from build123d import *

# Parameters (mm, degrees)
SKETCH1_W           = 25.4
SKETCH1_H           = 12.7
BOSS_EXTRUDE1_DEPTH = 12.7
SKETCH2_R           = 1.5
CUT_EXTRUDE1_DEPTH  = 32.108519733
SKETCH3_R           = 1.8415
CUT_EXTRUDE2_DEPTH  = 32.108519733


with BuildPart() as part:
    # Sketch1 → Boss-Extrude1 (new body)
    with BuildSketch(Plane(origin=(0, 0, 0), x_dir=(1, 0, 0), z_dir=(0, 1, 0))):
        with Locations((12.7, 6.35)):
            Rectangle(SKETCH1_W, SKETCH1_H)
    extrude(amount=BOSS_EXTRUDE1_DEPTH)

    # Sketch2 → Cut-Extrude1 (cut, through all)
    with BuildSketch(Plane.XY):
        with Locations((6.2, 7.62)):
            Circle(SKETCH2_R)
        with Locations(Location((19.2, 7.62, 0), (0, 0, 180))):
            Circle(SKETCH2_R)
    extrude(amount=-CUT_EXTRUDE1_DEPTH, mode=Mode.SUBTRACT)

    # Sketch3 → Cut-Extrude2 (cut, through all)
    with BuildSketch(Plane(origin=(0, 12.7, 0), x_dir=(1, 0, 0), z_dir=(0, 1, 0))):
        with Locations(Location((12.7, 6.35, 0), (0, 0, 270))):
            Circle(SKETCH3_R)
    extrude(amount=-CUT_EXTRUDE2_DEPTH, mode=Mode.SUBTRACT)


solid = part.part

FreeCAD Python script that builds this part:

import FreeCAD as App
import Part
import Sketcher

V = App.Vector
Q = App.Units.Quantity


def add_polygon(sketch, points):
    """Adds a closed chain of lines whose ends are joined by coincident constraints."""
    first, n = sketch.GeometryCount, len(points)
    for a, b in zip(points, points[1:] + points[:1]):
        sketch.addGeometry(Part.LineSegment(App.Vector(*a, 0), App.Vector(*b, 0)), False)
    for i in range(n):
        sketch.addConstraint(Sketcher.Constraint("Coincident", first + i, 2, first + (i + 1) % n, 1))

doc = App.newDocument("Part")
body = doc.addObject("PartDesign::Body", "Body")

sketch1 = doc.addObject("Sketcher::SketchObject", "Sketch")
body.addObject(sketch1)
sketch1.AttachmentSupport = (doc.XZ_Plane, [""])
sketch1.MapMode = "FlatFace"
add_polygon(sketch1, [(0, -13), (0, 0), (25, 0), (25, -13)])
sketch1.addConstraint([
    Sketcher.Constraint("Vertical", 0),
    Sketcher.Constraint("Horizontal", 1),
    Sketcher.Constraint("Vertical", 2),
    Sketcher.Constraint("Horizontal", 3),
    Sketcher.Constraint("Coincident", 0, 2, -1, 1),
    Sketcher.Constraint("DistanceX", 1, 1, 1, 2, Q("1 in")),
    Sketcher.Constraint("DistanceY", 0, 1, 0, 2, Q("0.5 in")),
])
pad1 = doc.addObject("PartDesign::Pad", "Pad")
body.addObject(pad1)
pad1.Profile = sketch1
pad1.Length = Q("0.5 in")
pad1.Reversed = True

sketch2 = doc.addObject("Sketcher::SketchObject", "Sketch001")
body.addObject(sketch2)
sketch2.AttachmentSupport = (doc.XY_Plane, [""])
sketch2.MapMode = "FlatFace"
sketch2.addGeometry([
    Part.Circle(V(6.2, 7.6, 0), V(0, 0, 1), 1.5),
    Part.Circle(V(19.2, 7.6, 0), V(0, 0, 1), 1.5),
], False)
sketch2.addConstraint([
    Sketcher.Constraint("Equal", 0, 1),
    Sketcher.Constraint("Horizontal", 0, 3, 1, 3),
    Sketcher.Constraint("DistanceY", -1, 1, 0, 3, Q("0.3 in")),
    Sketcher.Constraint("Diameter", 0, Q("3 mm")),
    Sketcher.Constraint("DistanceX", -1, 1, 0, 3, Q("6.2 mm")),
    Sketcher.Constraint("DistanceX", -1, 1, 1, 3, Q("19.2 mm")),
])
pocket1 = doc.addObject("PartDesign::Pocket", "Pocket")
body.addObject(pocket1)
pocket1.Profile = sketch2
pocket1.Type = "ThroughAll"

sketch3 = doc.addObject("Sketcher::SketchObject", "Sketch002")
body.addObject(sketch3)
sketch3.AttachmentSupport = (doc.XZ_Plane, [""])
sketch3.MapMode = "FlatFace"
sketch3.AttachmentOffset = App.Placement(V(0, 0, -0.5 * 25.4), App.Rotation())
sketch3.addGeometry(Part.Circle(V(12.7, -6.3, 0), V(0, 0, 1), 1.8), False)
sketch3.addConstraint([
    Sketcher.Constraint("Diameter", 0, Q("0.145 in")),
    Sketcher.Constraint("DistanceX", -1, 1, 0, 3, Q("0.5 in")),
    Sketcher.Constraint("DistanceY", 0, 3, -1, 1, Q("0.25 in")),
])
pocket2 = doc.addObject("PartDesign::Pocket", "Pocket001")
body.addObject(pocket2)
pocket2.Profile = sketch3
pocket2.Type = "ThroughAll"
pocket2.Reversed = True

doc.recompute()
